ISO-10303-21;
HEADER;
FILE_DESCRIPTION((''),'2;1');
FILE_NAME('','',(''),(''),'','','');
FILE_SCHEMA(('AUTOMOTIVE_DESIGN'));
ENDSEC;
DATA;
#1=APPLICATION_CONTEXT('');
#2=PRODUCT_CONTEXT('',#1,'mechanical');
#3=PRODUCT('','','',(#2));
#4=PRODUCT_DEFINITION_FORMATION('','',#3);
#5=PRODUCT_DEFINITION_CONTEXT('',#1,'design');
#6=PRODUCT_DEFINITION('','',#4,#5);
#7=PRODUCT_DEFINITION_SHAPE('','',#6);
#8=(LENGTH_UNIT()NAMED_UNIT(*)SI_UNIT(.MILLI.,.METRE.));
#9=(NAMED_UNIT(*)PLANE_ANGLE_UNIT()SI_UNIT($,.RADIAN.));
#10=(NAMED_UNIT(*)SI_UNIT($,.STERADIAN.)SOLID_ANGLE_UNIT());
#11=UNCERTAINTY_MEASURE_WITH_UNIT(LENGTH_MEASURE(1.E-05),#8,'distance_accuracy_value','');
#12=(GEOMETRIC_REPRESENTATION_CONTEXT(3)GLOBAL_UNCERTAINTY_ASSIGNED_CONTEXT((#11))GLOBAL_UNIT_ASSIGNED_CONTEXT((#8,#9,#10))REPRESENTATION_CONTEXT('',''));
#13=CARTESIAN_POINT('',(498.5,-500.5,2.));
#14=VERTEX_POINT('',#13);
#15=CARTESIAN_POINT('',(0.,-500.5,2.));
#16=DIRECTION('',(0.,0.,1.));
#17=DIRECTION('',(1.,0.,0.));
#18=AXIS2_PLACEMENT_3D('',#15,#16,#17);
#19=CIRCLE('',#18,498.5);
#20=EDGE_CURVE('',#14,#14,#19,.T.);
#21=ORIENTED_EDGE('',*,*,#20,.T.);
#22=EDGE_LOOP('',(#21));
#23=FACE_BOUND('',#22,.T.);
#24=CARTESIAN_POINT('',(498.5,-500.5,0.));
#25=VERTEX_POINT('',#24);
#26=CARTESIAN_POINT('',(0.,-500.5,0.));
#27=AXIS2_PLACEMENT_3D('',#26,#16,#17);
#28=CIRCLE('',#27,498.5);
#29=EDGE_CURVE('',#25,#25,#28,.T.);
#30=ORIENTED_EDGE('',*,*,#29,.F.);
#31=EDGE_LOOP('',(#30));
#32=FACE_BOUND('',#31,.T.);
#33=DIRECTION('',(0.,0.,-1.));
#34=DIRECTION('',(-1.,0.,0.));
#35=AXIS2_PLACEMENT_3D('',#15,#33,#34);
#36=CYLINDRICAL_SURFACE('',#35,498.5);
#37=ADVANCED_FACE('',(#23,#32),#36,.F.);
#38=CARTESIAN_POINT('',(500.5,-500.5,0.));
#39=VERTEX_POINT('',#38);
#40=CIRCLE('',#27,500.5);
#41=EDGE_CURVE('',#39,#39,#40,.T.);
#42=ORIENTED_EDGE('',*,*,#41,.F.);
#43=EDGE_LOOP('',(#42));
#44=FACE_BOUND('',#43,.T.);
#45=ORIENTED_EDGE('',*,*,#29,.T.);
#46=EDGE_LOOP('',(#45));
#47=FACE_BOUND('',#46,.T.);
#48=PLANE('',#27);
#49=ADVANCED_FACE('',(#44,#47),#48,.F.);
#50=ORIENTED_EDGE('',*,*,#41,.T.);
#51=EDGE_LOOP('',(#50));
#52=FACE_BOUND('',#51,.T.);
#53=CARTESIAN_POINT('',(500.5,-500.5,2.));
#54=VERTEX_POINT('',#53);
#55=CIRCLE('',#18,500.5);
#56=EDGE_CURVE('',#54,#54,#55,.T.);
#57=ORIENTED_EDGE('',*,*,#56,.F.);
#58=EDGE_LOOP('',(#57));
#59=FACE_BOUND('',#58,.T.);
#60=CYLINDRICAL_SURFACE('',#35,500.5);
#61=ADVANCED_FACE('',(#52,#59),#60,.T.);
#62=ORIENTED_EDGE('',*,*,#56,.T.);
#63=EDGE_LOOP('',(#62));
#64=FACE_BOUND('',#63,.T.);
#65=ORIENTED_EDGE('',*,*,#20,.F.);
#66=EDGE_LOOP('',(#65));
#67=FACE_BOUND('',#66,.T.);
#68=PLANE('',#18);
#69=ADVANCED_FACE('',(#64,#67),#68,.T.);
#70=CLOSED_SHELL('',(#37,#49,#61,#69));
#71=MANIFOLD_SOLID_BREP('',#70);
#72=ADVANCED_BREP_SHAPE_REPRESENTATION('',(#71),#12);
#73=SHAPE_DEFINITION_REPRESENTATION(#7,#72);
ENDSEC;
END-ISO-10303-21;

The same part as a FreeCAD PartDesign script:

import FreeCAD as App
import Part
import Sketcher

V = App.Vector
Q = App.Units.Quantity

doc = App.newDocument("Part")
body = doc.addObject("PartDesign::Body", "Body")

# Sketch on XY plane
sketch1 = body.newObject("Sketcher::SketchObject", "Sketch")
sketch1.AttachmentSupport = (doc.getObject("XY_Plane"), [""])
sketch1.MapMode = "FlatFace"
sketch1.addGeometry(Part.Circle(V(0, -500, 0), V(0, 0, 1), 500), False)
sketch1.addGeometry(Part.Circle(V(0, -500, 0), V(0, 0, 1), 498), False)
sketch1.addConstraint(Sketcher.Constraint("Coincident", 1, 3, 0, 3))
sketch1.addConstraint(Sketcher.Constraint("PointOnObject", 0, 3, -2))
sketch1.addConstraint(Sketcher.Constraint("Diameter", 0, Q("1001 mm")))
sketch1.addConstraint(Sketcher.Constraint("Diameter", 1, Q("997 mm")))
sketch1.addConstraint(Sketcher.Constraint("DistanceY", 0, 3, -1, 1, Q("500.5 mm")))
pad1 = body.newObject("PartDesign::Pad", "Pad")
pad1.Profile = sketch1
pad1.Length = 2

doc.recompute()
